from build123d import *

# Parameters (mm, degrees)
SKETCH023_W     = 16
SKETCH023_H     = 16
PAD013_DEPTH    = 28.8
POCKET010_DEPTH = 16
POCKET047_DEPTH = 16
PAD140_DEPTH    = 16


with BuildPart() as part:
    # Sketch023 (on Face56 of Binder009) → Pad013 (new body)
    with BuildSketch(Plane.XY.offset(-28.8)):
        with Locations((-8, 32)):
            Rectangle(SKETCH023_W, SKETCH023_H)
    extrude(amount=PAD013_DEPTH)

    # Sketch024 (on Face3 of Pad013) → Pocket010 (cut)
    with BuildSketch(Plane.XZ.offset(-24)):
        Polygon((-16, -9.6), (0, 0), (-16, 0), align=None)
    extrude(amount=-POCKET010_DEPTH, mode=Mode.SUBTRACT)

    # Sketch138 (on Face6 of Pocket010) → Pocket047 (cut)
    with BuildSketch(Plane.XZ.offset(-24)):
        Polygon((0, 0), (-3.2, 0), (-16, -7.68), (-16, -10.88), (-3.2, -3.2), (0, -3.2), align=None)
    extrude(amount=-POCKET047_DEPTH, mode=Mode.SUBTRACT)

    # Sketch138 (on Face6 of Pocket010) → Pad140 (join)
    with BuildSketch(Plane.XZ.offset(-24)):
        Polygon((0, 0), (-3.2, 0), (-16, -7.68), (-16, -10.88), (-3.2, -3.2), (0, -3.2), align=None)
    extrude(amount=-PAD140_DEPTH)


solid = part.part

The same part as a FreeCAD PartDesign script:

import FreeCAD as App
import Part
import Sketcher


def add_polygon(sketch, points):
    """Adds a closed chain of lines whose ends are joined by coincident constraints."""
    first, n = sketch.GeometryCount, len(points)
    for a, b in zip(points, points[1:] + points[:1]):
        sketch.addGeometry(Part.LineSegment(App.Vector(*a, 0), App.Vector(*b, 0)), False)
    for i in range(n):
        sketch.addConstraint(Sketcher.Constraint("Coincident", first + i, 2, first + (i + 1) % n, 1))

doc = App.newDocument("Part")
params = doc.addObject("Spreadsheet::Sheet", "Params")
for row, (alias, value) in enumerate([
    ("sketch1_width", "16 mm"),
    ("pad1_length", "28.8 mm"),
    ("sketch2_width", "16 mm"),
    ("sketch2_height", "9.6 mm"),
    ("pocket1_length", "16 mm"),
    ("sketch3_width", "3.2 mm"),
    ("pocket2_length", "16 mm"),
    ("sketch4_width", "3.2 mm"),
    ("pad2_length", "16 mm"),
], start=1):
    params.set(f"A{row}", alias)
    params.set(f"B{row}", "=" + value)
    params.setAlias(f"B{row}", alias)

body = doc.addObject("PartDesign::Body", "Body")

# Sketch on XY plane
sketch1 = doc.addObject("Sketcher::SketchObject", "Sketch")
body.addObject(sketch1)
sketch1.AttachmentSupport = (doc.XY_Plane, [""])
sketch1.MapMode = "FlatFace"
sketch1.AttachmentOffset = App.Placement(App.Vector(0, 0, -28.8), App.Rotation())
add_polygon(sketch1, [(-16, 40), (-16, 24), (0, 24), (0, 40)])  # lines 0-3
sketch1.addConstraint([
    Sketcher.Constraint("Vertical", 0),
    Sketcher.Constraint("Horizontal", 1),
    Sketcher.Constraint("Vertical", 2),
    Sketcher.Constraint("Horizontal", 3),
    Sketcher.Constraint("PointOnObject", 1, 2, -2),
    Sketcher.Constraint("Equal", 3, 0),
    Sketcher.Constraint("DistanceX", 1, 1, 1, 2, 16.0),
    Sketcher.Constraint("DistanceY", -1, 1, 0, 2, 24.0),
])
sketch1.setExpression("Constraints[10]", "Params.sketch1_width")
pad1 = doc.addObject("PartDesign::Pad", "Pad")
body.addObject(pad1)
pad1.Profile = sketch1
pad1.setExpression("Length", "Params.pad1_length")

# Sketch on XZ plane
sketch2 = doc.addObject("Sketcher::SketchObject", "Sketch001")
body.addObject(sketch2)
sketch2.AttachmentSupport = (doc.XZ_Plane, [""])
sketch2.MapMode = "FlatFace"
sketch2.AttachmentOffset = App.Placement(App.Vector(0, 0, -24), App.Rotation())
add_polygon(sketch2, [(-16, -10), (0, 0), (-16, 0)])  # lines 0-2
sketch2.addConstraint([
    Sketcher.Constraint("Horizontal", 1),
    Sketcher.Constraint("Vertical", 2),
    Sketcher.Constraint("Coincident", 0, 2, -1, 1),
    Sketcher.Constraint("DistanceX", 1, 2, 1, 1, 16.0),
    Sketcher.Constraint("DistanceY", 2, 2, 2, 1, 9.6),
])
sketch2.setExpression("Constraints[6]", "Params.sketch2_width")
sketch2.setExpression("Constraints[7]", "Params.sketch2_height")
pocket1 = doc.addObject("PartDesign::Pocket", "Pocket")
body.addObject(pocket1)
pocket1.Profile = sketch2
pocket1.setExpression("Length", "Params.pocket1_length")

# Sketch on XZ plane
sketch3 = doc.addObject("Sketcher::SketchObject", "Sketch002")
body.addObject(sketch3)
sketch3.AttachmentSupport = (doc.XZ_Plane, [""])
sketch3.MapMode = "FlatFace"
sketch3.AttachmentOffset = App.Placement(App.Vector(0, 0, -24), App.Rotation())
add_polygon(sketch3, [(0, 0), (-3.2, 0), (-16, -7.7), (-16, -10.9), (-3.2, -3.2), (0, -3.2)])  # lines 0-5
sketch3.addConstraint([
    Sketcher.Constraint("Horizontal", 0),
    Sketcher.Constraint("Vertical", 2),
    Sketcher.Constraint("Horizontal", 4),
    Sketcher.Constraint("Vertical", 5),
    Sketcher.Constraint("Coincident", 5, 2, -1, 1),
    Sketcher.Constraint("Parallel", 1, 3),
    Sketcher.Constraint("Vertical", 0, 2, 3, 2),
    Sketcher.Constraint("Equal", 4, 2),
    Sketcher.Constraint("DistanceX", 0, 2, 0, 1, 3.2),
    Sketcher.Constraint("DistanceX", 1, 2, -1, 1, 16.0),
    Sketcher.Constraint("DistanceY", 1, 2, -1, 1, 7.68),
])
sketch3.setExpression("Constraints[14]", "Params.sketch3_width")
pocket2 = doc.addObject("PartDesign::Pocket", "Pocket001")
body.addObject(pocket2)
pocket2.Profile = sketch3
pocket2.setExpression("Length", "Params.pocket2_length")

# Sketch on XZ plane
sketch4 = doc.addObject("Sketcher::SketchObject", "Sketch003")
body.addObject(sketch4)
sketch4.AttachmentSupport = (doc.XZ_Plane, [""])
sketch4.MapMode = "FlatFace"
sketch4.AttachmentOffset = App.Placement(App.Vector(0, 0, -24), App.Rotation())
add_polygon(sketch4, [(0, 0), (-3.2, 0), (-16, -7.7), (-16, -10.9), (-3.2, -3.2), (0, -3.2)])  # lines 0-5
sketch4.addConstraint([
    Sketcher.Constraint("Horizontal", 0),
    Sketcher.Constraint("Vertical", 2),
    Sketcher.Constraint("Horizontal", 4),
    Sketcher.Constraint("Vertical", 5),
    Sketcher.Constraint("Coincident", 5, 2, -1, 1),
    Sketcher.Constraint("Parallel", 1, 3),
    Sketcher.Constraint("Vertical", 0, 2, 3, 2),
    Sketcher.Constraint("Equal", 4, 2),
    Sketcher.Constraint("DistanceX", 0, 2, 0, 1, 3.2),
    Sketcher.Constraint("DistanceX", 1, 2, -1, 1, 16.0),
    Sketcher.Constraint("DistanceY", 1, 2, -1, 1, 7.68),
])
sketch4.setExpression("Constraints[14]", "Params.sketch4_width")
pad2 = doc.addObject("PartDesign::Pad", "Pad001")
body.addObject(pad2)
pad2.Profile = sketch4
pad2.setExpression("Length", "Params.pad2_length")
pad2.Reversed = True

doc.recompute()
